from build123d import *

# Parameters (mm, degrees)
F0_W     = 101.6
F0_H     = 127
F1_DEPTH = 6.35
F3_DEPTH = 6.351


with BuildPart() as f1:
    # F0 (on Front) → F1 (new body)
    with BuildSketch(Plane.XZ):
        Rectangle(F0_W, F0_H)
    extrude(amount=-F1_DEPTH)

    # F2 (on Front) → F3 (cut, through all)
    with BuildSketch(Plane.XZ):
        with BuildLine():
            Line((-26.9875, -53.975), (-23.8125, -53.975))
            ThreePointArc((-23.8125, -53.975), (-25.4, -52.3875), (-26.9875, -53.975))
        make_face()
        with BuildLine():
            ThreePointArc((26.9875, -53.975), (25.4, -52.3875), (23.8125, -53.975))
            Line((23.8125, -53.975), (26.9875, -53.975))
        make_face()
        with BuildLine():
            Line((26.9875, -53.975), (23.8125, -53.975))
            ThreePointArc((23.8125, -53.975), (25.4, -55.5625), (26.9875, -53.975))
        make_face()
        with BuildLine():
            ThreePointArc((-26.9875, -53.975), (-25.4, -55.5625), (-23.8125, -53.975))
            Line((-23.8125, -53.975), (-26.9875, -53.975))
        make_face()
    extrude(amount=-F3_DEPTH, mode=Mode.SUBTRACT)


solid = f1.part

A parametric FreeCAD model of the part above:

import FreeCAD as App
import Part
import Sketcher
Q = App.Units.Quantity

doc = App.newDocument("Part")
body = doc.addObject("PartDesign::Body", "Body")

sketch1 = doc.addObject("Sketcher::SketchObject", "Sketch")
body.addObject(sketch1)
sketch1.AttachmentSupport = (doc.XZ_Plane, [""])
sketch1.MapMode = "FlatFace"
sketch1.addGeometry([
    Part.LineSegment(App.Vector(-50.8, 63.5, 0), App.Vector(-50.8, -63.5, 0)),
    Part.LineSegment(App.Vector(-50.8, -63.5, 0), App.Vector(50.8, -63.5, 0)),
    Part.LineSegment(App.Vector(50.8, -63.5, 0), App.Vector(50.8, 63.5, 0)),
    Part.LineSegment(App.Vector(50.8, 63.5, 0), App.Vector(-50.8, 63.5, 0)),
], False)
sketch1.addConstraint([
    Sketcher.Constraint("Coincident", 0, 2, 1, 1),
    Sketcher.Constraint("Coincident", 1, 2, 2, 1),
    Sketcher.Constraint("Coincident", 2, 2, 3, 1),
    Sketcher.Constraint("Coincident", 3, 2, 0, 1),
    Sketcher.Constraint("Vertical", 0),
    Sketcher.Constraint("Horizontal", 1),
    Sketcher.Constraint("Vertical", 2),
    Sketcher.Constraint("Horizontal", 3),
    Sketcher.Constraint("Symmetric", 0, 2, 2, 2, -1, 1),
    Sketcher.Constraint("DistanceX", 1, 1, 1, 2, Q("4 in")),
    Sketcher.Constraint("DistanceY", 0, 2, 0, 1, Q("5 in")),
])
pad1 = doc.addObject("PartDesign::Pad", "Pad")
body.addObject(pad1)
pad1.Profile = sketch1
pad1.Length = Q("0.25 in")
pad1.Reversed = True

sketch2 = doc.addObject("Sketcher::SketchObject", "Sketch001")
body.addObject(sketch2)
sketch2.AttachmentSupport = (doc.XZ_Plane, [""])
sketch2.MapMode = "FlatFace"
sketch2.addGeometry([
    Part.Circle(App.Vector(-25.4, -53.975, 0), App.Vector(0, 0, 1), 1.5875),
    Part.Circle(App.Vector(25.4, -53.975, 0), App.Vector(0, 0, 1), 1.5875),
], False)
sketch2.addConstraint([
    Sketcher.Constraint("Equal", 0, 1),
    Sketcher.Constraint("Symmetric", 0, 3, 1, 3, -2),
    Sketcher.Constraint("Diameter", 0, Q("0.125 in")),
    Sketcher.Constraint("DistanceX", 0, 3, -1, 1, Q("1 in")),
    Sketcher.Constraint("DistanceY", 0, 3, -1, 1, Q("2.125 in")),
])
pocket1 = doc.addObject("PartDesign::Pocket", "Pocket")
body.addObject(pocket1)
pocket1.Profile = sketch2
pocket1.Type = "ThroughAll"

doc.recompute()
